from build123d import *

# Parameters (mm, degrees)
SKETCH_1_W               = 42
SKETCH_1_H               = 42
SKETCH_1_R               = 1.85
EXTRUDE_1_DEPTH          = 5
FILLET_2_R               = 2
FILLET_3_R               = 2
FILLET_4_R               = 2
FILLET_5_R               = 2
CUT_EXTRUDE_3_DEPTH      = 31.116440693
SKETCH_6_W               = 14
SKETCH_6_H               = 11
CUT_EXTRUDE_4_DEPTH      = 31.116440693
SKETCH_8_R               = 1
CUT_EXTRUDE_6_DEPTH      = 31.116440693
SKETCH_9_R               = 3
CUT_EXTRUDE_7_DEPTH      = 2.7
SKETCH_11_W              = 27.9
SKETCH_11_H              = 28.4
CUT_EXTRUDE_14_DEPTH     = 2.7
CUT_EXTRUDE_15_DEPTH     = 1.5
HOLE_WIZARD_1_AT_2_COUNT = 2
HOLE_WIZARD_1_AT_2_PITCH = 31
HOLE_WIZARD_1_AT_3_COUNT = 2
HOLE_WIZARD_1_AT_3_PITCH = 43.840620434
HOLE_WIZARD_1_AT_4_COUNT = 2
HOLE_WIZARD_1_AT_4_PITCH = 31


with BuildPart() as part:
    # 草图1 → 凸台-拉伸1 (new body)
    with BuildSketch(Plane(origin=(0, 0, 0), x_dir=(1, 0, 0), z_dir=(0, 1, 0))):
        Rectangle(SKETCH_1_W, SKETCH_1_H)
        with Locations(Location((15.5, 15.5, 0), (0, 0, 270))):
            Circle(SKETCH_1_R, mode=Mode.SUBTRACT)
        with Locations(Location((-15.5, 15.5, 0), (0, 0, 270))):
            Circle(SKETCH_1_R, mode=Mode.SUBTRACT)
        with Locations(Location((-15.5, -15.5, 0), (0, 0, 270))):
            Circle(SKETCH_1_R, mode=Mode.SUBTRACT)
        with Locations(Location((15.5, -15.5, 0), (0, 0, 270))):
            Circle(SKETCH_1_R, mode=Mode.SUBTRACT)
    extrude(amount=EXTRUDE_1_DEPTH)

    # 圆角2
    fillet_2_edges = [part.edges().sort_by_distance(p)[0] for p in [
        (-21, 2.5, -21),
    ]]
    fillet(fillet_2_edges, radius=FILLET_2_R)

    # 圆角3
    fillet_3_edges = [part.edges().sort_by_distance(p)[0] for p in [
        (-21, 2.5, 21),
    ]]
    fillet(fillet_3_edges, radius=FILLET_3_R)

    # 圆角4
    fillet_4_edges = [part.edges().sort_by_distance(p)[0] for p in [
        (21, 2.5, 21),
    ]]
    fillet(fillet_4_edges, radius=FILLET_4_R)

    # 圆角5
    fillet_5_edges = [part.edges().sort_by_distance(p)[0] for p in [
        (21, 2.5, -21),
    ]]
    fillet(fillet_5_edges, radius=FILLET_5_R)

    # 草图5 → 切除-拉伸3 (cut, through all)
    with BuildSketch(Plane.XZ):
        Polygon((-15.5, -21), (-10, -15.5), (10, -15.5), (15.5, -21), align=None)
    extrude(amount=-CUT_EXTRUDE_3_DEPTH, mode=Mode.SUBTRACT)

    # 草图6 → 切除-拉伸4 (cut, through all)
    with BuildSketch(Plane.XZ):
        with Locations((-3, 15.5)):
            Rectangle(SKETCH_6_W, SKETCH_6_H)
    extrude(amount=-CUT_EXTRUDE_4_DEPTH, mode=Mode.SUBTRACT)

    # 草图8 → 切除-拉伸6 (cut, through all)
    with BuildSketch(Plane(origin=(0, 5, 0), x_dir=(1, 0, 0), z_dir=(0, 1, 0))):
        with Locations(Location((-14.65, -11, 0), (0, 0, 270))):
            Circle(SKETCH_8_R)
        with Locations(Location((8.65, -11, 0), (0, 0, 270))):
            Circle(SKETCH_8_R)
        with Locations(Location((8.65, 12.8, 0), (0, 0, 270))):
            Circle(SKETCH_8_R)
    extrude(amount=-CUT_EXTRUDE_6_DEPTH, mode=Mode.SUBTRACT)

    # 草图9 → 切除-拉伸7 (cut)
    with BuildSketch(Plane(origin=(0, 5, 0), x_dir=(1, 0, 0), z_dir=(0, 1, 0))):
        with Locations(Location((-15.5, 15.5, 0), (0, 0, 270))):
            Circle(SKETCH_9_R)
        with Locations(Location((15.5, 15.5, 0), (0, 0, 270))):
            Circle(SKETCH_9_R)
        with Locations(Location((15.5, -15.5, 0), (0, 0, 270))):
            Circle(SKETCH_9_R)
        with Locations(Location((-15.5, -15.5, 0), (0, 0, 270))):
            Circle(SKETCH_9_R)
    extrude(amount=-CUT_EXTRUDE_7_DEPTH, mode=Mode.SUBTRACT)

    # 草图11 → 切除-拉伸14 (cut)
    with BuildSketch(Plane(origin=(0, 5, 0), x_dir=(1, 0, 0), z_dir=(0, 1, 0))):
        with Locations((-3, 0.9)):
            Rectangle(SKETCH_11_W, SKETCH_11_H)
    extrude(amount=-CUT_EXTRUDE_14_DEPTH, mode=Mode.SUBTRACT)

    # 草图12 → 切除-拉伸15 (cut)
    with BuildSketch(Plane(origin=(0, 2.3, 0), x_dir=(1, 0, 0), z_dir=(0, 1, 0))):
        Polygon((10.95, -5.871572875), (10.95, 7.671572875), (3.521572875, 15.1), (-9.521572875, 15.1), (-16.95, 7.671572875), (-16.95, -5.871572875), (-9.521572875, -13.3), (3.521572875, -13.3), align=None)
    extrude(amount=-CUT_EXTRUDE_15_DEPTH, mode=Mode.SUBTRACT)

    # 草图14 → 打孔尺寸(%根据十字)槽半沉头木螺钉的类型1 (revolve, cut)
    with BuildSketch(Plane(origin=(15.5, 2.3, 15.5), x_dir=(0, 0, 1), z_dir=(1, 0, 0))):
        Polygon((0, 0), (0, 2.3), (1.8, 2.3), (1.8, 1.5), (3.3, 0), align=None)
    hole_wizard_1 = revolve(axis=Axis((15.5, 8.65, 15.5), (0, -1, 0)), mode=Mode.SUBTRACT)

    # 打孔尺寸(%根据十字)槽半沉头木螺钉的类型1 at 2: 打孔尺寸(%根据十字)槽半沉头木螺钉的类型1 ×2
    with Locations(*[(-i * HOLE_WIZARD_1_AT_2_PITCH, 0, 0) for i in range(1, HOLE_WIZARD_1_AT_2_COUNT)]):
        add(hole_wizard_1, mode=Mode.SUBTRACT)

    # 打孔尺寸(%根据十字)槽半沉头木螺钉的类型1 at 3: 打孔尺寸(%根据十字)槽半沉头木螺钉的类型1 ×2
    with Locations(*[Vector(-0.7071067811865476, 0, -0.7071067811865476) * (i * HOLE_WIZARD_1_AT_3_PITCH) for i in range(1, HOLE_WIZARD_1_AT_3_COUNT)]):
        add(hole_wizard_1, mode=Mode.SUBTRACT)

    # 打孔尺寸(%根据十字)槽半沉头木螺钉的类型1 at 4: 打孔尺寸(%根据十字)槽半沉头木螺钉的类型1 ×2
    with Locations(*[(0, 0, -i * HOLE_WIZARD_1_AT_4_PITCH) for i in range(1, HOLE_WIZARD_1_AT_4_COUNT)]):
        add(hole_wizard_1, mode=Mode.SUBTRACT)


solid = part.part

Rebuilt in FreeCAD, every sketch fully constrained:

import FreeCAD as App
import Part
import Sketcher
Q = App.Units.Quantity


def edges_at(feature, points):
    """Names of the edges that pass closest to the given points."""
    edges = feature.Shape.Edges
    near = lambda p: min(range(len(edges)), key=lambda i: edges[i].distToShape(Part.Vertex(*p))[0])
    return sorted({f"Edge{near(p) + 1}" for p in points})


def add_polygon(sketch, points):
    """Adds a closed chain of lines whose ends are joined by coincident constraints."""
    first, n = sketch.GeometryCount, len(points)
    for a, b in zip(points, points[1:] + points[:1]):
        sketch.addGeometry(Part.LineSegment(App.Vector(*a, 0), App.Vector(*b, 0)), False)
    for i in range(n):
        sketch.addConstraint(Sketcher.Constraint("Coincident", first + i, 2, first + (i + 1) % n, 1))

doc = App.newDocument("Part")
body = doc.addObject("PartDesign::Body", "Body")

sketch1 = body.newObject("Sketcher::SketchObject", "Sketch")
sketch1.AttachmentSupport = (doc.getObject("XZ_Plane"), [""])
sketch1.MapMode = "FlatFace"
add_polygon(sketch1, [(-21, -21), (-21, 21), (21, 21), (21, -21)])
sketch1.addGeometry(Part.Circle(App.Vector(-15.5, 15.5, 0), App.Vector(0, 0, 1), 1.9), False)
sketch1.addGeometry(Part.Circle(App.Vector(15.5, 15.5, 0), App.Vector(0, 0, 1), 1.9), False)
sketch1.addGeometry(Part.Circle(App.Vector(-15.5, -15.5, 0), App.Vector(0, 0, 1), 1.9), False)
sketch1.addGeometry(Part.Circle(App.Vector(15.5, -15.5, 0), App.Vector(0, 0, 1), 1.9), False)
sketch1.addConstraint([
    Sketcher.Constraint("Vertical", 0),
    Sketcher.Constraint("Horizontal", 1),
    Sketcher.Constraint("Vertical", 2),
    Sketcher.Constraint("Horizontal", 3),
    Sketcher.Constraint("Equal", 4, 5),
    Sketcher.Constraint("Equal", 5, 6),
    Sketcher.Constraint("Equal", 6, 7),
    Sketcher.Constraint("Symmetric", 5, 3, 6, 3, -1, 1),
    Sketcher.Constraint("Symmetric", 4, 3, 7, 3, -1, 1),
    Sketcher.Constraint("Symmetric", 0, 2, 2, 2, -1, 1),
    Sketcher.Constraint("Symmetric", 4, 3, 5, 3, -2),
    Sketcher.Constraint("Equal", 3, 0),
    Sketcher.Constraint("Diameter", 4, 3.7),
    Sketcher.Constraint("DistanceX", 1, 1, 1, 2, 42.0),
    Sketcher.Constraint("DistanceX", 4, 3, 5, 3, 31.0),
    Sketcher.Constraint("DistanceY", 6, 3, 4, 3, 31.0),
])
pad1 = body.newObject("PartDesign::Pad", "Pad")
pad1.Profile = sketch1
pad1.Length = 5
pad1.Reversed = True
doc.recompute()

fillet = body.newObject("PartDesign::Fillet", "Fillet")
fillet.Base = (pad1, edges_at(pad1, [(-21, 2.5, -21)]))
fillet.Radius = 2
doc.recompute()

fillet2 = body.newObject("PartDesign::Fillet", "Fillet001")
fillet2.Base = (fillet, edges_at(fillet, [(-21, 2.5, 21)]))
fillet2.Radius = 2
doc.recompute()

fillet3 = body.newObject("PartDesign::Fillet", "Fillet002")
fillet3.Base = (fillet2, edges_at(fillet2, [(21, 2.5, 21)]))
fillet3.Radius = 2
doc.recompute()

fillet4 = body.newObject("PartDesign::Fillet", "Fillet003")
fillet4.Base = (fillet3, edges_at(fillet3, [(21, 2.5, -21)]))
fillet4.Radius = 2

sketch2 = body.newObject("Sketcher::SketchObject", "Sketch001")
sketch2.AttachmentSupport = (doc.getObject("XZ_Plane"), [""])
sketch2.MapMode = "FlatFace"
add_polygon(sketch2, [(-10, -16), (-16, -21), (16, -21), (10, -16)])
sketch2.addConstraint([
    Sketcher.Constraint("Horizontal", 1),
    Sketcher.Constraint("Horizontal", 3),
    Sketcher.Constraint("Perpendicular", 0, 2),
    Sketcher.Constraint("Equal", 0, 2),
    Sketcher.Constraint("DistanceX", 1, 1, 1, 2, 31.0),
    Sketcher.Constraint("DistanceX", 3, 2, 3, 1, 20.0),
    Sketcher.Constraint("DistanceY", 0, 2, -1, 1, 21.0),
    Sketcher.Constraint("DistanceX", -1, 1, 2, 2, 10.0),
])
pocket1 = body.newObject("PartDesign::Pocket", "Pocket")
pocket1.Profile = sketch2
pocket1.Type = "ThroughAll"

sketch3 = body.newObject("Sketcher::SketchObject", "Sketch002")
sketch3.AttachmentSupport = (doc.getObject("XZ_Plane"), [""])
sketch3.MapMode = "FlatFace"
add_polygon(sketch3, [(-10, 21), (-10, 10), (4, 10), (4, 21)])
sketch3.addConstraint([
    Sketcher.Constraint("Vertical", 0),
    Sketcher.Constraint("Horizontal", 1),
    Sketcher.Constraint("Vertical", 2),
    Sketcher.Constraint("Horizontal", 3),
    Sketcher.Constraint("DistanceX", 1, 1, 1, 2, 14.0),
    Sketcher.Constraint("DistanceY", 0, 2, 0, 1, 11.0),
    Sketcher.Constraint("DistanceX", 0, 2, -1, 1, 10.0),
    Sketcher.Constraint("DistanceY", -1, 1, 0, 2, 10.0),
])
pocket2 = body.newObject("PartDesign::Pocket", "Pocket001")
pocket2.Profile = sketch3
pocket2.Type = "ThroughAll"

sketch4 = body.newObject("Sketcher::SketchObject", "Sketch003")
sketch4.AttachmentSupport = (doc.getObject("XZ_Plane"), [""])
sketch4.MapMode = "FlatFace"
sketch4.AttachmentOffset = App.Placement(App.Vector(0, 0, -5), App.Rotation())
sketch4.addGeometry([
    Part.Circle(App.Vector(-14.7, 11, 0), App.Vector(0, 0, 1), 1),
    Part.Circle(App.Vector(8.7, 11, 0), App.Vector(0, 0, 1), 1),
    Part.Circle(App.Vector(8.7, -12.8, 0), App.Vector(0, 0, 1), 1),
], False)
sketch4.addConstraint([
    Sketcher.Constraint("Equal", 0, 1),
    Sketcher.Constraint("Equal", 1, 2),
    Sketcher.Constraint("Horizontal", 0, 3, 1, 3),
    Sketcher.Constraint("Vertical", 1, 3, 2, 3),
    Sketcher.Constraint("Diameter", 0, 2.0),
    Sketcher.Constraint("DistanceY", -1, 1, 0, 3, 11.0),
    Sketcher.Constraint("DistanceY", 2, 3, -1, 1, 12.8),
    Sketcher.Constraint("DistanceX", 0, 3, 1, 3, 23.3),
    Sketcher.Constraint("DistanceX", 0, 3, -1, 1, 14.65),
])
pocket3 = body.newObject("PartDesign::Pocket", "Pocket002")
pocket3.Profile = sketch4
pocket3.Type = "ThroughAll"
pocket3.Reversed = True

sketch5 = body.newObject("Sketcher::SketchObject", "Sketch004")
sketch5.AttachmentSupport = (doc.getObject("XZ_Plane"), [""])
sketch5.MapMode = "FlatFace"
sketch5.AttachmentOffset = App.Placement(App.Vector(0, 0, -5), App.Rotation())
sketch5.addGeometry([
    Part.Circle(App.Vector(-15.5, -15.5, 0), App.Vector(0, 0, 1), 3),
    Part.Circle(App.Vector(15.5, -15.5, 0), App.Vector(0, 0, 1), 3),
    Part.Circle(App.Vector(15.5, 15.5, 0), App.Vector(0, 0, 1), 3),
    Part.Circle(App.Vector(-15.5, 15.5, 0), App.Vector(0, 0, 1), 3),
], False)
sketch5.addConstraint([
    Sketcher.Constraint("Equal", 0, 1),
    Sketcher.Constraint("Equal", 1, 2),
    Sketcher.Constraint("Equal", 2, 3),
    Sketcher.Constraint("Symmetric", 0, 3, 2, 3, -1, 1),
    Sketcher.Constraint("Symmetric", 1, 3, 3, 3, -1, 1),
    Sketcher.Constraint("Symmetric", 0, 3, 1, 3, -2),
    Sketcher.Constraint("Diameter", 0, 6.0),
    Sketcher.Constraint("DistanceX", 0, 3, 1, 3, 31.0),
    Sketcher.Constraint("DistanceY", 1, 3, 2, 3, 31.0),
])
pocket4 = body.newObject("PartDesign::Pocket", "Pocket003")
pocket4.Profile = sketch5
pocket4.Length = 2.7
pocket4.Reversed = True

sketch6 = body.newObject("Sketcher::SketchObject", "Sketch005")
sketch6.AttachmentSupport = (doc.getObject("XZ_Plane"), [""])
sketch6.MapMode = "FlatFace"
sketch6.AttachmentOffset = App.Placement(App.Vector(0, 0, -5), App.Rotation())
add_polygon(sketch6, [(-17, -15), (-17, 13), (11, 13), (11, -15)])
sketch6.addConstraint([
    Sketcher.Constraint("Vertical", 0),
    Sketcher.Constraint("Horizontal", 1),
    Sketcher.Constraint("Vertical", 2),
    Sketcher.Constraint("Horizontal", 3),
    Sketcher.Constraint("DistanceX", 1, 1, 1, 2, 27.9),
    Sketcher.Constraint("DistanceY", 0, 1, 0, 2, 28.4),
    Sketcher.Constraint("DistanceY", -1, 1, 0, 2, 13.3),
    Sketcher.Constraint("DistanceX", 0, 2, -1, 1, 16.95),
])
pocket5 = body.newObject("PartDesign::Pocket", "Pocket004")
pocket5.Profile = sketch6
pocket5.Length = 2.7
pocket5.Reversed = True

sketch7 = body.newObject("Sketcher::SketchObject", "Sketch006")
sketch7.AttachmentSupport = (doc.getObject("XZ_Plane"), [""])
sketch7.MapMode = "FlatFace"
sketch7.AttachmentOffset = App.Placement(App.Vector(0, 0, -2.3), App.Rotation())
add_polygon(sketch7, [(11, 6), (11, -8), (4, -15), (-10, -15), (-17, -8), (-17, 6), (-10, 13), (4, 13)])
sketch7.addConstraint([
    Sketcher.Constraint("Vertical", 0),
    Sketcher.Constraint("Horizontal", 2),
    Sketcher.Constraint("Vertical", 4),
    Sketcher.Constraint("Horizontal", 6),
    Sketcher.Constraint("Perpendicular", 1, 3),
    Sketcher.Constraint("Perpendicular", 3, 5),
    Sketcher.Constraint("Perpendicular", 5, 7),
    Sketcher.Constraint("Horizontal", 0, 2, 3, 2),
    Sketcher.Constraint("Horizontal", 4, 2, 7, 2),
    Sketcher.Constraint("Vertical", 2, 2, 5, 2),
    Sketcher.Constraint("Vertical", 1, 2, 6, 2),
    Sketcher.Constraint("DistanceY", 1, 2, -1, 1, 15.1),
    Sketcher.Constraint("DistanceY", -1, 1, 5, 2, 13.3),
    Sketcher.Constraint("DistanceX", 3, 2, 0, 2, 27.9),
    Sketcher.Constraint("DistanceX", -1, 1, 0, 2, 10.95),
    Sketcher.Constraint("DistanceX", 2, 2, 2, 1, 13.043146),
])
pocket6 = body.newObject("PartDesign::Pocket", "Pocket005")
pocket6.Profile = sketch7
pocket6.Length = 1.5
pocket6.Reversed = True

sketch8 = body.newObject("Sketcher::SketchObject", "Sketch007")
sketch8.AttachmentSupport = (doc.getObject("YZ_Plane"), [""])
sketch8.MapMode = "FlatFace"
sketch8.AttachmentOffset = App.Placement(App.Vector(0, 0, 15.5), App.Rotation())
add_polygon(sketch8, [(0, 15.5), (2.3, 15.5), (2.3, 18.8), (0.8, 17.3), (0, 17.3)])
sketch8.addGeometry(Part.LineSegment(App.Vector(2.3, 15.5, 0), App.Vector(0, 15.5, 0)), True)
sketch8.addConstraint([
    Sketcher.Constraint("Horizontal", 0),
    Sketcher.Constraint("Vertical", 1),
    Sketcher.Constraint("Horizontal", 3),
    Sketcher.Constraint("Vertical", 4),
    Sketcher.Constraint("Horizontal", 5),
    Sketcher.Constraint("Coincident", 5, 1, 0, 2),
    Sketcher.Constraint("PointOnObject", 3, 2, -2),
    Sketcher.Constraint("PointOnObject", 5, 2, -2),
    Sketcher.Constraint("Angle", 2, Q("-135 deg")),
    Sketcher.Constraint("DistanceX", 0, 1, 0, 2, 2.3),
    Sketcher.Constraint("DistanceX", 3, 2, 3, 1, 0.8),
    Sketcher.Constraint("DistanceY", 1, 1, 1, 2, 3.3),
    Sketcher.Constraint("DistanceY", -1, 1, 0, 2, 15.5),
])
groove = body.newObject("PartDesign::Groove", "Groove")
groove.Profile = sketch8
groove.ReferenceAxis = (sketch8, ["Axis0"])
groove.Angle = 360
doc.recompute()

linearpattern = body.newObject("PartDesign::LinearPattern", "LinearPattern")
linearpattern.Originals = [groove]
linearpattern.Direction = (doc.getObject("X_Axis"), [""])
linearpattern.Mode = "offset"
linearpattern.Offset = 31
linearpattern.Occurrences = 2
linearpattern.Reversed = True
body.Tip = linearpattern
doc.recompute()

datumline = body.newObject("PartDesign::Line", "DatumLine")
datumline.Placement = App.Placement(App.Vector(0, 0, 0), App.Rotation(App.Vector(0, 0, 1), App.Vector(-0.707106781, 0, -0.707106781)))
linearpattern2 = body.newObject("PartDesign::LinearPattern", "LinearPattern001")
linearpattern2.Originals = [groove]
linearpattern2.Direction = (datumline, [""])
linearpattern2.Mode = "offset"
linearpattern2.Offset = 43.84062
linearpattern2.Occurrences = 2
body.Tip = linearpattern2
doc.recompute()

linearpattern3 = body.newObject("PartDesign::LinearPattern", "LinearPattern002")
linearpattern3.Originals = [groove]
linearpattern3.Direction = (doc.getObject("Z_Axis"), [""])
linearpattern3.Mode = "offset"
linearpattern3.Offset = 31
linearpattern3.Occurrences = 2
linearpattern3.Reversed = True
body.Tip = linearpattern3

doc.recompute()
